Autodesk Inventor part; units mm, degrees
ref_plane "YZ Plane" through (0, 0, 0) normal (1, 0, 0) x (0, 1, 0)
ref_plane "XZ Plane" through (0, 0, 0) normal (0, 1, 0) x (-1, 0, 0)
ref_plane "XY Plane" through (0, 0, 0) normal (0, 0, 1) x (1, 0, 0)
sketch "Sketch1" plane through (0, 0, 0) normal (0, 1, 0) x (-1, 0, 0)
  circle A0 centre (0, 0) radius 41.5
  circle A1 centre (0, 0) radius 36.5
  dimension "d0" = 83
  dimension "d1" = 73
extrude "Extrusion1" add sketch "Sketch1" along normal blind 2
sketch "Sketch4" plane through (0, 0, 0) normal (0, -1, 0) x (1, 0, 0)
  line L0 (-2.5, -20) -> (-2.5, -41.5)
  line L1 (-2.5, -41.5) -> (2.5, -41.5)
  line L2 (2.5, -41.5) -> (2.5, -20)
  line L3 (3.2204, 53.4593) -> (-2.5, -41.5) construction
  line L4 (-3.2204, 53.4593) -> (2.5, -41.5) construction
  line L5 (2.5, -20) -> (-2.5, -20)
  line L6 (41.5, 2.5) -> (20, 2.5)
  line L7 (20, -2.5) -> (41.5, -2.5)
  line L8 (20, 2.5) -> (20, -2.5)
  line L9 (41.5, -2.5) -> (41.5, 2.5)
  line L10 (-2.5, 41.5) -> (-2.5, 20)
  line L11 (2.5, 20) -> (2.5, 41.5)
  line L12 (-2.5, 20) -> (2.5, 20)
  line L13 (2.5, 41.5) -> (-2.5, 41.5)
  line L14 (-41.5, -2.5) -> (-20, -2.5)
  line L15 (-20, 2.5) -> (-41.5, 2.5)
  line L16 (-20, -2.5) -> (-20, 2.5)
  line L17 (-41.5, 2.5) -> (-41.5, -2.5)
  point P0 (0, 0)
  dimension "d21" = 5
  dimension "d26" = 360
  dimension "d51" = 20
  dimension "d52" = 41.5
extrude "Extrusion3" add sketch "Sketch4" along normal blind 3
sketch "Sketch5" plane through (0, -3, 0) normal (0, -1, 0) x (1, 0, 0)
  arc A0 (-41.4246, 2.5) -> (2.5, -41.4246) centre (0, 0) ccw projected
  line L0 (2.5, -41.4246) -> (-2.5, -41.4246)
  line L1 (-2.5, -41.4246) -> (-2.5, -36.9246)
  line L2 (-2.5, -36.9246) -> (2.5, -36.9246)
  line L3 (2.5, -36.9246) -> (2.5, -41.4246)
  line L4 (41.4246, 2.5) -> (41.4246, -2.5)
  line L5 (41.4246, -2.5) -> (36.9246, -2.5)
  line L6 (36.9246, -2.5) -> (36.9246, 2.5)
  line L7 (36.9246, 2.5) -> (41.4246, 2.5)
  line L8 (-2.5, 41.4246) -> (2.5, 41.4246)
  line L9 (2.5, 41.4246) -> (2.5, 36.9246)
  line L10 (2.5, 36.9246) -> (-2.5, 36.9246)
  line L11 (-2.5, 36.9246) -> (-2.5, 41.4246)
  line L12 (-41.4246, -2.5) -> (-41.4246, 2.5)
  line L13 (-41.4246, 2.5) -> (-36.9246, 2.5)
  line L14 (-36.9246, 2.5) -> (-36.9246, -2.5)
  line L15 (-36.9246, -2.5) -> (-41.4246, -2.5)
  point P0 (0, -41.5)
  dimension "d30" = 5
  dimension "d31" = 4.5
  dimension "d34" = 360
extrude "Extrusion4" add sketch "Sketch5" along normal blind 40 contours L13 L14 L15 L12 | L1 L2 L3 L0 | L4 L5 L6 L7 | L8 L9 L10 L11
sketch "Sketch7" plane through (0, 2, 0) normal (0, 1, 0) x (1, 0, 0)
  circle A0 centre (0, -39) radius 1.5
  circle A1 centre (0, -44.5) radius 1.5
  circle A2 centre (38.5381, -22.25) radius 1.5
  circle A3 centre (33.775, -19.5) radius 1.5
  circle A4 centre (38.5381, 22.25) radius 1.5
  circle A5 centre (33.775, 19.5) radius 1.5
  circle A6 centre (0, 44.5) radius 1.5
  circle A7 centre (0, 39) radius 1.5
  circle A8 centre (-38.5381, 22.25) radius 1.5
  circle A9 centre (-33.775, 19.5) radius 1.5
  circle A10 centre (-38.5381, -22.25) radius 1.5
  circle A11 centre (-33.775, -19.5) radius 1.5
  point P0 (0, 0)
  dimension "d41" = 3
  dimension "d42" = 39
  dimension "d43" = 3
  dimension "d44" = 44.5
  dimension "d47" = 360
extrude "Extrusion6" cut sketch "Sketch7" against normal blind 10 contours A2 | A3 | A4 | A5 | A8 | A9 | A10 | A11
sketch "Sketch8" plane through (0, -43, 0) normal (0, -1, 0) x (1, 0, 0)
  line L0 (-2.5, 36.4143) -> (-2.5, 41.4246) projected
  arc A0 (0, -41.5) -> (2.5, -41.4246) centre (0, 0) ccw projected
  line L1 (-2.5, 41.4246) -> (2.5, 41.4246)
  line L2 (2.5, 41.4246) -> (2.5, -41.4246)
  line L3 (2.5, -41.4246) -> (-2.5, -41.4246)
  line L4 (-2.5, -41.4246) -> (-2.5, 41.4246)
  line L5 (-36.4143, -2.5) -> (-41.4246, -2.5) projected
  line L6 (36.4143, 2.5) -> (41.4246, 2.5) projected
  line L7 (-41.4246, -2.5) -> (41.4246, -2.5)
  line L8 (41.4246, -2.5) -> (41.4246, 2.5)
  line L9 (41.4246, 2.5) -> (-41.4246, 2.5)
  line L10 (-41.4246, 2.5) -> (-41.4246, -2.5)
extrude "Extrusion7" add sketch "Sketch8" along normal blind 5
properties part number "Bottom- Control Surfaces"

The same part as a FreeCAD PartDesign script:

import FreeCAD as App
import Part
import Sketcher
from FreeCAD import Vector

doc = App.newDocument("Part")
body = doc.addObject("PartDesign::Body", "Body")

# Sketch on XZ plane
sketch1 = doc.addObject("Sketcher::SketchObject", "Sketch")
body.addObject(sketch1)
sketch1.AttachmentSupport = (doc.XZ_Plane, [""])
sketch1.MapMode = "FlatFace"
sketch1.addGeometry(Part.Circle(Vector(0, 0, 0), Vector(0, 0, 1), 41.5), False)
sketch1.addGeometry(Part.Circle(Vector(0, 0, 0), Vector(0, 0, 1), 36.5), False)
sketch1.addConstraint(Sketcher.Constraint("Coincident", 0, 3, -1, 1))
sketch1.addConstraint(Sketcher.Constraint("Coincident", 1, 3, -1, 1))
sketch1.addConstraint(Sketcher.Constraint("Diameter", 0, 83.0))
sketch1.addConstraint(Sketcher.Constraint("Diameter", 1, 73.0))
pad1 = doc.addObject("PartDesign::Pad", "Pad")
body.addObject(pad1)
pad1.Profile = sketch1
pad1.Length = 2
pad1.Reversed = True

# Sketch on XZ plane
sketch2 = doc.addObject("Sketcher::SketchObject", "Sketch001")
body.addObject(sketch2)
sketch2.AttachmentSupport = (doc.XZ_Plane, [""])
sketch2.MapMode = "FlatFace"
sketch2.addGeometry(Part.LineSegment(Vector(2.5, -20, 0), Vector(-2.5, -20, 0)), False)
sketch2.addGeometry(Part.LineSegment(Vector(-2.5, -20, 0), Vector(-2.5, -41.5, 0)), False)
sketch2.addGeometry(Part.LineSegment(Vector(-2.5, -41.5, 0), Vector(2.5, -41.5, 0)), False)
sketch2.addGeometry(Part.LineSegment(Vector(2.5, -41.5, 0), Vector(2.5, -20, 0)), False)
sketch2.addGeometry(Part.LineSegment(Vector(41.5, -2.5, 0), Vector(41.5, 2.5, 0)), False)
sketch2.addGeometry(Part.LineSegment(Vector(41.5, 2.5, 0), Vector(20, 2.5, 0)), False)
sketch2.addGeometry(Part.LineSegment(Vector(20, 2.5, 0), Vector(20, -2.5, 0)), False)
sketch2.addGeometry(Part.LineSegment(Vector(20, -2.5, 0), Vector(41.5, -2.5, 0)), False)
sketch2.addGeometry(Part.LineSegment(Vector(2.5, 41.5, 0), Vector(-2.5, 41.5, 0)), False)
sketch2.addGeometry(Part.LineSegment(Vector(-2.5, 41.5, 0), Vector(-2.5, 20, 0)), False)
sketch2.addGeometry(Part.LineSegment(Vector(-2.5, 20, 0), Vector(2.5, 20, 0)), False)
sketch2.addGeometry(Part.LineSegment(Vector(2.5, 20, 0), Vector(2.5, 41.5, 0)), False)
sketch2.addGeometry(Part.LineSegment(Vector(-41.5, 2.5, 0), Vector(-41.5, -2.5, 0)), False)
sketch2.addGeometry(Part.LineSegment(Vector(-41.5, -2.5, 0), Vector(-20, -2.5, 0)), False)
sketch2.addGeometry(Part.LineSegment(Vector(-20, -2.5, 0), Vector(-20, 2.5, 0)), False)
sketch2.addGeometry(Part.LineSegment(Vector(-20, 2.5, 0), Vector(-41.5, 2.5, 0)), False)
sketch2.addConstraint(Sketcher.Constraint("Coincident", 0, 2, 1, 1))
sketch2.addConstraint(Sketcher.Constraint("Coincident", 1, 2, 2, 1))
sketch2.addConstraint(Sketcher.Constraint("Coincident", 2, 2, 3, 1))
sketch2.addConstraint(Sketcher.Constraint("Coincident", 3, 2, 0, 1))
sketch2.addConstraint(Sketcher.Constraint("Coincident", 4, 2, 5, 1))
sketch2.addConstraint(Sketcher.Constraint("Coincident", 5, 2, 6, 1))
sketch2.addConstraint(Sketcher.Constraint("Coincident", 6, 2, 7, 1))
sketch2.addConstraint(Sketcher.Constraint("Coincident", 7, 2, 4, 1))
sketch2.addConstraint(Sketcher.Constraint("Coincident", 8, 2, 9, 1))
sketch2.addConstraint(Sketcher.Constraint("Coincident", 9, 2, 10, 1))
sketch2.addConstraint(Sketcher.Constraint("Coincident", 10, 2, 11, 1))
sketch2.addConstraint(Sketcher.Constraint("Coincident", 11, 2, 8, 1))
sketch2.addConstraint(Sketcher.Constraint("Coincident", 12, 2, 13, 1))
sketch2.addConstraint(Sketcher.Constraint("Coincident", 13, 2, 14, 1))
sketch2.addConstraint(Sketcher.Constraint("Coincident", 14, 2, 15, 1))
sketch2.addConstraint(Sketcher.Constraint("Coincident", 15, 2, 12, 1))
sketch2.addConstraint(Sketcher.Constraint("Horizontal", 0))
sketch2.addConstraint(Sketcher.Constraint("Vertical", 1))
sketch2.addConstraint(Sketcher.Constraint("Horizontal", 2))
sketch2.addConstraint(Sketcher.Constraint("Vertical", 3))
sketch2.addConstraint(Sketcher.Constraint("Vertical", 4))
sketch2.addConstraint(Sketcher.Constraint("Horizontal", 5))
sketch2.addConstraint(Sketcher.Constraint("Vertical", 6))
sketch2.addConstraint(Sketcher.Constraint("Horizontal", 7))
sketch2.addConstraint(Sketcher.Constraint("Horizontal", 8))
sketch2.addConstraint(Sketcher.Constraint("Vertical", 9))
sketch2.addConstraint(Sketcher.Constraint("Horizontal", 10))
sketch2.addConstraint(Sketcher.Constraint("Vertical", 11))
sketch2.addConstraint(Sketcher.Constraint("Vertical", 12))
sketch2.addConstraint(Sketcher.Constraint("Horizontal", 13))
sketch2.addConstraint(Sketcher.Constraint("Vertical", 14))
sketch2.addConstraint(Sketcher.Constraint("Horizontal", 15))
sketch2.addConstraint(Sketcher.Constraint("Symmetric", 2, 2, 8, 2, -1, 1))
sketch2.addConstraint(Sketcher.Constraint("Symmetric", 0, 2, 10, 2, -1, 1))
sketch2.addConstraint(Sketcher.Constraint("Symmetric", 4, 2, 12, 2, -1, 1))
sketch2.addConstraint(Sketcher.Constraint("Symmetric", 6, 2, 14, 2, -1, 1))
sketch2.addConstraint(Sketcher.Constraint("Horizontal", 7, 2, 12, 2))
sketch2.addConstraint(Sketcher.Constraint("Vertical", 1, 2, 8, 2))
sketch2.addConstraint(Sketcher.Constraint("Equal", 15, 1))
sketch2.addConstraint(Sketcher.Constraint("Equal", 10, 4))
sketch2.addConstraint(Sketcher.Constraint("DistanceX", 0, 2, 0, 1, 5.0))
sketch2.addConstraint(Sketcher.Constraint("DistanceY", 0, 2, -1, 1, 20.0))
sketch2.addConstraint(Sketcher.Constraint("DistanceX", -1, 1, 5, 2, 20.0))
sketch2.addConstraint(Sketcher.Constraint("DistanceY", 1, 2, -1, 1, 41.5))
pad2 = doc.addObject("PartDesign::Pad", "Pad001")
body.addObject(pad2)
pad2.Profile = sketch2
pad2.Length = 3

# Sketch on XZ plane
sketch3 = doc.addObject("Sketcher::SketchObject", "Sketch002")
body.addObject(sketch3)
sketch3.AttachmentSupport = (doc.XZ_Plane, [""])
sketch3.MapMode = "FlatFace"
sketch3.AttachmentOffset = App.Placement(Vector(0, 0, 3), App.Rotation())
sketch3.addGeometry(Part.LineSegment(Vector(-36.9246, 2.5, 0), Vector(-41.4246, 2.5, 0)), False)
sketch3.addGeometry(Part.LineSegment(Vector(-41.4246, 2.5, 0), Vector(-41.4246, -2.5, 0)), False)
sketch3.addGeometry(Part.LineSegment(Vector(-41.4246, -2.5, 0), Vector(-36.9246, -2.5, 0)), False)
sketch3.addGeometry(Part.LineSegment(Vector(-36.9246, -2.5, 0), Vector(-36.9246, 2.5, 0)), False)
sketch3.addGeometry(Part.LineSegment(Vector(-2.5, -36.9246, 0), Vector(-2.5, -41.4246, 0)), False)
sketch3.addGeometry(Part.LineSegment(Vector(-2.5, -41.4246, 0), Vector(2.5, -41.4246, 0)), False)
sketch3.addGeometry(Part.LineSegment(Vector(2.5, -41.4246, 0), Vector(2.5, -36.9246, 0)), False)
sketch3.addGeometry(Part.LineSegment(Vector(2.5, -36.9246, 0), Vector(-2.5, -36.9246, 0)), False)
sketch3.addGeometry(Part.LineSegment(Vector(41.4246, -2.5, 0), Vector(41.4246, 2.5, 0)), False)
sketch3.addGeometry(Part.LineSegment(Vector(41.4246, 2.5, 0), Vector(36.9246, 2.5, 0)), False)
sketch3.addGeometry(Part.LineSegment(Vector(36.9246, 2.5, 0), Vector(36.9246, -2.5, 0)), False)
sketch3.addGeometry(Part.LineSegment(Vector(36.9246, -2.5, 0), Vector(41.4246, -2.5, 0)), False)
sketch3.addGeometry(Part.LineSegment(Vector(2.5, 41.4246, 0), Vector(-2.5, 41.4246, 0)), False)
sketch3.addGeometry(Part.LineSegment(Vector(-2.5, 41.4246, 0), Vector(-2.5, 36.9246, 0)), False)
sketch3.addGeometry(Part.LineSegment(Vector(-2.5, 36.9246, 0), Vector(2.5, 36.9246, 0)), False)
sketch3.addGeometry(Part.LineSegment(Vector(2.5, 36.9246, 0), Vector(2.5, 41.4246, 0)), False)
sketch3.addConstraint(Sketcher.Constraint("Coincident", 0, 2, 1, 1))
sketch3.addConstraint(Sketcher.Constraint("Coincident", 1, 2, 2, 1))
sketch3.addConstraint(Sketcher.Constraint("Coincident", 2, 2, 3, 1))
sketch3.addConstraint(Sketcher.Constraint("Coincident", 3, 2, 0, 1))
sketch3.addConstraint(Sketcher.Constraint("Coincident", 4, 2, 5, 1))
sketch3.addConstraint(Sketcher.Constraint("Coincident", 5, 2, 6, 1))
sketch3.addConstraint(Sketcher.Constraint("Coincident", 6, 2, 7, 1))
sketch3.addConstraint(Sketcher.Constraint("Coincident", 7, 2, 4, 1))
sketch3.addConstraint(Sketcher.Constraint("Coincident", 8, 2, 9, 1))
sketch3.addConstraint(Sketcher.Constraint("Coincident", 9, 2, 10, 1))
sketch3.addConstraint(Sketcher.Constraint("Coincident", 10, 2, 11, 1))
sketch3.addConstraint(Sketcher.Constraint("Coincident", 11, 2, 8, 1))
sketch3.addConstraint(Sketcher.Constraint("Coincident", 12, 2, 13, 1))
sketch3.addConstraint(Sketcher.Constraint("Coincident", 13, 2, 14, 1))
sketch3.addConstraint(Sketcher.Constraint("Coincident", 14, 2, 15, 1))
sketch3.addConstraint(Sketcher.Constraint("Coincident", 15, 2, 12, 1))
sketch3.addConstraint(Sketcher.Constraint("Horizontal", 0))
sketch3.addConstraint(Sketcher.Constraint("Vertical", 1))
sketch3.addConstraint(Sketcher.Constraint("Horizontal", 2))
sketch3.addConstraint(Sketcher.Constraint("Vertical", 3))
sketch3.addConstraint(Sketcher.Constraint("Vertical", 4))
sketch3.addConstraint(Sketcher.Constraint("Horizontal", 5))
sketch3.addConstraint(Sketcher.Constraint("Vertical", 6))
sketch3.addConstraint(Sketcher.Constraint("Horizontal", 7))
sketch3.addConstraint(Sketcher.Constraint("Vertical", 8))
sketch3.addConstraint(Sketcher.Constraint("Horizontal", 9))
sketch3.addConstraint(Sketcher.Constraint("Vertical", 10))
sketch3.addConstraint(Sketcher.Constraint("Horizontal", 11))
sketch3.addConstraint(Sketcher.Constraint("Horizontal", 12))
sketch3.addConstraint(Sketcher.Constraint("Vertical", 13))
sketch3.addConstraint(Sketcher.Constraint("Horizontal", 14))
sketch3.addConstraint(Sketcher.Constraint("Vertical", 15))
sketch3.addConstraint(Sketcher.Constraint("Symmetric", 1, 2, 8, 2, -1, 1))
sketch3.addConstraint(Sketcher.Constraint("Symmetric", 3, 2, 10, 2, -1, 1))
sketch3.addConstraint(Sketcher.Constraint("Symmetric", 5, 2, 12, 2, -1, 1))
sketch3.addConstraint(Sketcher.Constraint("Symmetric", 7, 2, 14, 2, -1, 1))
sketch3.addConstraint(Sketcher.Constraint("Horizontal", 3, 2, 8, 2))
sketch3.addConstraint(Sketcher.Constraint("Vertical", 7, 2, 12, 2))
sketch3.addConstraint(Sketcher.Constraint("Equal", 14, 1))
sketch3.addConstraint(Sketcher.Constraint("Equal", 11, 4))
sketch3.addConstraint(Sketcher.Constraint("DistanceX", 5, 1, 5, 2, 5.0))
sketch3.addConstraint(Sketcher.Constraint("DistanceX", 0, 2, 0, 1, 4.5))
sketch3.addConstraint(Sketcher.Constraint("DistanceX", 0, 2, -1, 1, 41.4246))
sketch3.addConstraint(Sketcher.Constraint("DistanceY", 4, 2, -1, 1, 41.4246))
pad3 = doc.addObject("PartDesign::Pad", "Pad002")
body.addObject(pad3)
pad3.Profile = sketch3
pad3.Length = 40

# Sketch on XZ plane
sketch4 = doc.addObject("Sketcher::SketchObject", "Sketch003")
body.addObject(sketch4)
sketch4.AttachmentSupport = (doc.XZ_Plane, [""])
sketch4.MapMode = "FlatFace"
sketch4.AttachmentOffset = App.Placement(Vector(0, 0, -2), App.Rotation())
sketch4.addGeometry(Part.Circle(Vector(38.5381, 22.25, 0), Vector(0, 0, 1), 1.5), False)
sketch4.addGeometry(Part.Circle(Vector(33.775, 19.5, 0), Vector(0, 0, 1), 1.5), False)
sketch4.addGeometry(Part.Circle(Vector(38.5381, -22.25, 0), Vector(0, 0, 1), 1.5), False)
sketch4.addGeometry(Part.Circle(Vector(33.775, -19.5, 0), Vector(0, 0, 1), 1.5), False)
sketch4.addGeometry(Part.Circle(Vector(-38.5381, -22.25, 0), Vector(0, 0, 1), 1.5), False)
sketch4.addGeometry(Part.Circle(Vector(-33.775, -19.5, 0), Vector(0, 0, 1), 1.5), False)
sketch4.addGeometry(Part.Circle(Vector(-38.5381, 22.25, 0), Vector(0, 0, 1), 1.5), False)
sketch4.addGeometry(Part.Circle(Vector(-33.775, 19.5, 0), Vector(0, 0, 1), 1.5), False)
sketch4.addConstraint(Sketcher.Constraint("Equal", 0, 1))
sketch4.addConstraint(Sketcher.Constraint("Equal", 1, 2))
sketch4.addConstraint(Sketcher.Constraint("Equal", 2, 3))
sketch4.addConstraint(Sketcher.Constraint("Equal", 3, 4))
sketch4.addConstraint(Sketcher.Constraint("Equal", 4, 5))
sketch4.addConstraint(Sketcher.Constraint("Equal", 5, 6))
sketch4.addConstraint(Sketcher.Constraint("Equal", 6, 7))
sketch4.addConstraint(Sketcher.Constraint("Symmetric", 0, 3, 4, 3, -1, 1))
sketch4.addConstraint(Sketcher.Constraint("Symmetric", 1, 3, 5, 3, -1, 1))
sketch4.addConstraint(Sketcher.Constraint("Symmetric", 2, 3, 6, 3, -1, 1))
sketch4.addConstraint(Sketcher.Constraint("Symmetric", 3, 3, 7, 3, -1, 1))
sketch4.addConstraint(Sketcher.Constraint("Symmetric", 2, 3, 4, 3, -2))
sketch4.addConstraint(Sketcher.Constraint("Symmetric", 3, 3, 5, 3, -2))
sketch4.addConstraint(Sketcher.Constraint("Diameter", 0, 3.0))
sketch4.addConstraint(Sketcher.Constraint("DistanceY", 3, 3, 1, 3, 39.0))
sketch4.addConstraint(Sketcher.Constraint("DistanceY", 2, 3, 0, 3, 44.5))
sketch4.addConstraint(Sketcher.Constraint("DistanceX", 5, 3, 3, 3, 67.55))
sketch4.addConstraint(Sketcher.Constraint("DistanceX", -1, 1, 0, 3, 38.538))
pocket1 = doc.addObject("PartDesign::Pocket", "Pocket")
body.addObject(pocket1)
pocket1.Profile = sketch4
pocket1.Length = 10
pocket1.Reversed = True

# Sketch on XZ plane
sketch5 = doc.addObject("Sketcher::SketchObject", "Sketch004")
body.addObject(sketch5)
sketch5.AttachmentSupport = (doc.XZ_Plane, [""])
sketch5.MapMode = "FlatFace"
sketch5.AttachmentOffset = App.Placement(Vector(0, 0, 43), App.Rotation())
sketch5.addGeometry(Part.LineSegment(Vector(-2.5, 41.4246, 0), Vector(-2.5, 2.5, 0)), False)
sketch5.addGeometry(Part.LineSegment(Vector(-2.5, 2.5, 0), Vector(-41.4246, 2.5, 0)), False)
sketch5.addGeometry(Part.LineSegment(Vector(-41.4246, 2.5, 0), Vector(-41.4246, -2.5, 0)), False)
sketch5.addGeometry(Part.LineSegment(Vector(-41.4246, -2.5, 0), Vector(-2.5, -2.5, 0)), False)
sketch5.addGeometry(Part.LineSegment(Vector(-2.5, -2.5, 0), Vector(-2.5, -41.4246, 0)), False)
sketch5.addGeometry(Part.LineSegment(Vector(-2.5, -41.4246, 0), Vector(2.5, -41.4246, 0)), False)
sketch5.addGeometry(Part.LineSegment(Vector(2.5, -41.4246, 0), Vector(2.5, -2.5, 0)), False)
sketch5.addGeometry(Part.LineSegment(Vector(2.5, -2.5, 0), Vector(41.4246, -2.5, 0)), False)
sketch5.addGeometry(Part.LineSegment(Vector(41.4246, -2.5, 0), Vector(41.4246, 2.5, 0)), False)
sketch5.addGeometry(Part.LineSegment(Vector(41.4246, 2.5, 0), Vector(2.5, 2.5, 0)), False)
sketch5.addGeometry(Part.LineSegment(Vector(2.5, 2.5, 0), Vector(2.5, 41.4246, 0)), False)
sketch5.addGeometry(Part.LineSegment(Vector(2.5, 41.4246, 0), Vector(-2.5, 41.4246, 0)), False)
sketch5.addConstraint(Sketcher.Constraint("Coincident", 0, 2, 1, 1))
sketch5.addConstraint(Sketcher.Constraint("Coincident", 1, 2, 2, 1))
sketch5.addConstraint(Sketcher.Constraint("Coincident", 2, 2, 3, 1))
sketch5.addConstraint(Sketcher.Constraint("Coincident", 3, 2, 4, 1))
sketch5.addConstraint(Sketcher.Constraint("Coincident", 4, 2, 5, 1))
sketch5.addConstraint(Sketcher.Constraint("Coincident", 5, 2, 6, 1))
sketch5.addConstraint(Sketcher.Constraint("Coincident", 6, 2, 7, 1))
sketch5.addConstraint(Sketcher.Constraint("Coincident", 7, 2, 8, 1))
sketch5.addConstraint(Sketcher.Constraint("Coincident", 8, 2, 9, 1))
sketch5.addConstraint(Sketcher.Constraint("Coincident", 9, 2, 10, 1))
sketch5.addConstraint(Sketcher.Constraint("Coincident", 10, 2, 11, 1))
sketch5.addConstraint(Sketcher.Constraint("Coincident", 11, 2, 0, 1))
sketch5.addConstraint(Sketcher.Constraint("Vertical", 0))
sketch5.addConstraint(Sketcher.Constraint("Horizontal", 1))
sketch5.addConstraint(Sketcher.Constraint("Vertical", 2))
sketch5.addConstraint(Sketcher.Constraint("Horizontal", 3))
sketch5.addConstraint(Sketcher.Constraint("Vertical", 4))
sketch5.addConstraint(Sketcher.Constraint("Horizontal", 5))
sketch5.addConstraint(Sketcher.Constraint("Vertical", 6))
sketch5.addConstraint(Sketcher.Constraint("Horizontal", 7))
sketch5.addConstraint(Sketcher.Constraint("Vertical", 8))
sketch5.addConstraint(Sketcher.Constraint("Horizontal", 9))
sketch5.addConstraint(Sketcher.Constraint("Vertical", 10))
sketch5.addConstraint(Sketcher.Constraint("Horizontal", 11))
sketch5.addConstraint(Sketcher.Constraint("Symmetric", 0, 2, 6, 2, -1, 1))
sketch5.addConstraint(Sketcher.Constraint("Symmetric", 2, 2, 8, 2, -1, 1))
sketch5.addConstraint(Sketcher.Constraint("Symmetric", 4, 2, 10, 2, -1, 1))
sketch5.addConstraint(Sketcher.Constraint("Symmetric", 3, 2, 6, 2, -2))
sketch5.addConstraint(Sketcher.Constraint("Equal", 9, 0))
sketch5.addConstraint(Sketcher.Constraint("Equal", 11, 2))
sketch5.addConstraint(Sketcher.Constraint("DistanceX", 5, 1, 5, 2, 5.0))
sketch5.addConstraint(Sketcher.Constraint("DistanceX", 1, 2, 1, 1, 38.9246))
pad4 = doc.addObject("PartDesign::Pad", "Pad003")
body.addObject(pad4)
pad4.Profile = sketch5
pad4.Length = 5

doc.recompute()
